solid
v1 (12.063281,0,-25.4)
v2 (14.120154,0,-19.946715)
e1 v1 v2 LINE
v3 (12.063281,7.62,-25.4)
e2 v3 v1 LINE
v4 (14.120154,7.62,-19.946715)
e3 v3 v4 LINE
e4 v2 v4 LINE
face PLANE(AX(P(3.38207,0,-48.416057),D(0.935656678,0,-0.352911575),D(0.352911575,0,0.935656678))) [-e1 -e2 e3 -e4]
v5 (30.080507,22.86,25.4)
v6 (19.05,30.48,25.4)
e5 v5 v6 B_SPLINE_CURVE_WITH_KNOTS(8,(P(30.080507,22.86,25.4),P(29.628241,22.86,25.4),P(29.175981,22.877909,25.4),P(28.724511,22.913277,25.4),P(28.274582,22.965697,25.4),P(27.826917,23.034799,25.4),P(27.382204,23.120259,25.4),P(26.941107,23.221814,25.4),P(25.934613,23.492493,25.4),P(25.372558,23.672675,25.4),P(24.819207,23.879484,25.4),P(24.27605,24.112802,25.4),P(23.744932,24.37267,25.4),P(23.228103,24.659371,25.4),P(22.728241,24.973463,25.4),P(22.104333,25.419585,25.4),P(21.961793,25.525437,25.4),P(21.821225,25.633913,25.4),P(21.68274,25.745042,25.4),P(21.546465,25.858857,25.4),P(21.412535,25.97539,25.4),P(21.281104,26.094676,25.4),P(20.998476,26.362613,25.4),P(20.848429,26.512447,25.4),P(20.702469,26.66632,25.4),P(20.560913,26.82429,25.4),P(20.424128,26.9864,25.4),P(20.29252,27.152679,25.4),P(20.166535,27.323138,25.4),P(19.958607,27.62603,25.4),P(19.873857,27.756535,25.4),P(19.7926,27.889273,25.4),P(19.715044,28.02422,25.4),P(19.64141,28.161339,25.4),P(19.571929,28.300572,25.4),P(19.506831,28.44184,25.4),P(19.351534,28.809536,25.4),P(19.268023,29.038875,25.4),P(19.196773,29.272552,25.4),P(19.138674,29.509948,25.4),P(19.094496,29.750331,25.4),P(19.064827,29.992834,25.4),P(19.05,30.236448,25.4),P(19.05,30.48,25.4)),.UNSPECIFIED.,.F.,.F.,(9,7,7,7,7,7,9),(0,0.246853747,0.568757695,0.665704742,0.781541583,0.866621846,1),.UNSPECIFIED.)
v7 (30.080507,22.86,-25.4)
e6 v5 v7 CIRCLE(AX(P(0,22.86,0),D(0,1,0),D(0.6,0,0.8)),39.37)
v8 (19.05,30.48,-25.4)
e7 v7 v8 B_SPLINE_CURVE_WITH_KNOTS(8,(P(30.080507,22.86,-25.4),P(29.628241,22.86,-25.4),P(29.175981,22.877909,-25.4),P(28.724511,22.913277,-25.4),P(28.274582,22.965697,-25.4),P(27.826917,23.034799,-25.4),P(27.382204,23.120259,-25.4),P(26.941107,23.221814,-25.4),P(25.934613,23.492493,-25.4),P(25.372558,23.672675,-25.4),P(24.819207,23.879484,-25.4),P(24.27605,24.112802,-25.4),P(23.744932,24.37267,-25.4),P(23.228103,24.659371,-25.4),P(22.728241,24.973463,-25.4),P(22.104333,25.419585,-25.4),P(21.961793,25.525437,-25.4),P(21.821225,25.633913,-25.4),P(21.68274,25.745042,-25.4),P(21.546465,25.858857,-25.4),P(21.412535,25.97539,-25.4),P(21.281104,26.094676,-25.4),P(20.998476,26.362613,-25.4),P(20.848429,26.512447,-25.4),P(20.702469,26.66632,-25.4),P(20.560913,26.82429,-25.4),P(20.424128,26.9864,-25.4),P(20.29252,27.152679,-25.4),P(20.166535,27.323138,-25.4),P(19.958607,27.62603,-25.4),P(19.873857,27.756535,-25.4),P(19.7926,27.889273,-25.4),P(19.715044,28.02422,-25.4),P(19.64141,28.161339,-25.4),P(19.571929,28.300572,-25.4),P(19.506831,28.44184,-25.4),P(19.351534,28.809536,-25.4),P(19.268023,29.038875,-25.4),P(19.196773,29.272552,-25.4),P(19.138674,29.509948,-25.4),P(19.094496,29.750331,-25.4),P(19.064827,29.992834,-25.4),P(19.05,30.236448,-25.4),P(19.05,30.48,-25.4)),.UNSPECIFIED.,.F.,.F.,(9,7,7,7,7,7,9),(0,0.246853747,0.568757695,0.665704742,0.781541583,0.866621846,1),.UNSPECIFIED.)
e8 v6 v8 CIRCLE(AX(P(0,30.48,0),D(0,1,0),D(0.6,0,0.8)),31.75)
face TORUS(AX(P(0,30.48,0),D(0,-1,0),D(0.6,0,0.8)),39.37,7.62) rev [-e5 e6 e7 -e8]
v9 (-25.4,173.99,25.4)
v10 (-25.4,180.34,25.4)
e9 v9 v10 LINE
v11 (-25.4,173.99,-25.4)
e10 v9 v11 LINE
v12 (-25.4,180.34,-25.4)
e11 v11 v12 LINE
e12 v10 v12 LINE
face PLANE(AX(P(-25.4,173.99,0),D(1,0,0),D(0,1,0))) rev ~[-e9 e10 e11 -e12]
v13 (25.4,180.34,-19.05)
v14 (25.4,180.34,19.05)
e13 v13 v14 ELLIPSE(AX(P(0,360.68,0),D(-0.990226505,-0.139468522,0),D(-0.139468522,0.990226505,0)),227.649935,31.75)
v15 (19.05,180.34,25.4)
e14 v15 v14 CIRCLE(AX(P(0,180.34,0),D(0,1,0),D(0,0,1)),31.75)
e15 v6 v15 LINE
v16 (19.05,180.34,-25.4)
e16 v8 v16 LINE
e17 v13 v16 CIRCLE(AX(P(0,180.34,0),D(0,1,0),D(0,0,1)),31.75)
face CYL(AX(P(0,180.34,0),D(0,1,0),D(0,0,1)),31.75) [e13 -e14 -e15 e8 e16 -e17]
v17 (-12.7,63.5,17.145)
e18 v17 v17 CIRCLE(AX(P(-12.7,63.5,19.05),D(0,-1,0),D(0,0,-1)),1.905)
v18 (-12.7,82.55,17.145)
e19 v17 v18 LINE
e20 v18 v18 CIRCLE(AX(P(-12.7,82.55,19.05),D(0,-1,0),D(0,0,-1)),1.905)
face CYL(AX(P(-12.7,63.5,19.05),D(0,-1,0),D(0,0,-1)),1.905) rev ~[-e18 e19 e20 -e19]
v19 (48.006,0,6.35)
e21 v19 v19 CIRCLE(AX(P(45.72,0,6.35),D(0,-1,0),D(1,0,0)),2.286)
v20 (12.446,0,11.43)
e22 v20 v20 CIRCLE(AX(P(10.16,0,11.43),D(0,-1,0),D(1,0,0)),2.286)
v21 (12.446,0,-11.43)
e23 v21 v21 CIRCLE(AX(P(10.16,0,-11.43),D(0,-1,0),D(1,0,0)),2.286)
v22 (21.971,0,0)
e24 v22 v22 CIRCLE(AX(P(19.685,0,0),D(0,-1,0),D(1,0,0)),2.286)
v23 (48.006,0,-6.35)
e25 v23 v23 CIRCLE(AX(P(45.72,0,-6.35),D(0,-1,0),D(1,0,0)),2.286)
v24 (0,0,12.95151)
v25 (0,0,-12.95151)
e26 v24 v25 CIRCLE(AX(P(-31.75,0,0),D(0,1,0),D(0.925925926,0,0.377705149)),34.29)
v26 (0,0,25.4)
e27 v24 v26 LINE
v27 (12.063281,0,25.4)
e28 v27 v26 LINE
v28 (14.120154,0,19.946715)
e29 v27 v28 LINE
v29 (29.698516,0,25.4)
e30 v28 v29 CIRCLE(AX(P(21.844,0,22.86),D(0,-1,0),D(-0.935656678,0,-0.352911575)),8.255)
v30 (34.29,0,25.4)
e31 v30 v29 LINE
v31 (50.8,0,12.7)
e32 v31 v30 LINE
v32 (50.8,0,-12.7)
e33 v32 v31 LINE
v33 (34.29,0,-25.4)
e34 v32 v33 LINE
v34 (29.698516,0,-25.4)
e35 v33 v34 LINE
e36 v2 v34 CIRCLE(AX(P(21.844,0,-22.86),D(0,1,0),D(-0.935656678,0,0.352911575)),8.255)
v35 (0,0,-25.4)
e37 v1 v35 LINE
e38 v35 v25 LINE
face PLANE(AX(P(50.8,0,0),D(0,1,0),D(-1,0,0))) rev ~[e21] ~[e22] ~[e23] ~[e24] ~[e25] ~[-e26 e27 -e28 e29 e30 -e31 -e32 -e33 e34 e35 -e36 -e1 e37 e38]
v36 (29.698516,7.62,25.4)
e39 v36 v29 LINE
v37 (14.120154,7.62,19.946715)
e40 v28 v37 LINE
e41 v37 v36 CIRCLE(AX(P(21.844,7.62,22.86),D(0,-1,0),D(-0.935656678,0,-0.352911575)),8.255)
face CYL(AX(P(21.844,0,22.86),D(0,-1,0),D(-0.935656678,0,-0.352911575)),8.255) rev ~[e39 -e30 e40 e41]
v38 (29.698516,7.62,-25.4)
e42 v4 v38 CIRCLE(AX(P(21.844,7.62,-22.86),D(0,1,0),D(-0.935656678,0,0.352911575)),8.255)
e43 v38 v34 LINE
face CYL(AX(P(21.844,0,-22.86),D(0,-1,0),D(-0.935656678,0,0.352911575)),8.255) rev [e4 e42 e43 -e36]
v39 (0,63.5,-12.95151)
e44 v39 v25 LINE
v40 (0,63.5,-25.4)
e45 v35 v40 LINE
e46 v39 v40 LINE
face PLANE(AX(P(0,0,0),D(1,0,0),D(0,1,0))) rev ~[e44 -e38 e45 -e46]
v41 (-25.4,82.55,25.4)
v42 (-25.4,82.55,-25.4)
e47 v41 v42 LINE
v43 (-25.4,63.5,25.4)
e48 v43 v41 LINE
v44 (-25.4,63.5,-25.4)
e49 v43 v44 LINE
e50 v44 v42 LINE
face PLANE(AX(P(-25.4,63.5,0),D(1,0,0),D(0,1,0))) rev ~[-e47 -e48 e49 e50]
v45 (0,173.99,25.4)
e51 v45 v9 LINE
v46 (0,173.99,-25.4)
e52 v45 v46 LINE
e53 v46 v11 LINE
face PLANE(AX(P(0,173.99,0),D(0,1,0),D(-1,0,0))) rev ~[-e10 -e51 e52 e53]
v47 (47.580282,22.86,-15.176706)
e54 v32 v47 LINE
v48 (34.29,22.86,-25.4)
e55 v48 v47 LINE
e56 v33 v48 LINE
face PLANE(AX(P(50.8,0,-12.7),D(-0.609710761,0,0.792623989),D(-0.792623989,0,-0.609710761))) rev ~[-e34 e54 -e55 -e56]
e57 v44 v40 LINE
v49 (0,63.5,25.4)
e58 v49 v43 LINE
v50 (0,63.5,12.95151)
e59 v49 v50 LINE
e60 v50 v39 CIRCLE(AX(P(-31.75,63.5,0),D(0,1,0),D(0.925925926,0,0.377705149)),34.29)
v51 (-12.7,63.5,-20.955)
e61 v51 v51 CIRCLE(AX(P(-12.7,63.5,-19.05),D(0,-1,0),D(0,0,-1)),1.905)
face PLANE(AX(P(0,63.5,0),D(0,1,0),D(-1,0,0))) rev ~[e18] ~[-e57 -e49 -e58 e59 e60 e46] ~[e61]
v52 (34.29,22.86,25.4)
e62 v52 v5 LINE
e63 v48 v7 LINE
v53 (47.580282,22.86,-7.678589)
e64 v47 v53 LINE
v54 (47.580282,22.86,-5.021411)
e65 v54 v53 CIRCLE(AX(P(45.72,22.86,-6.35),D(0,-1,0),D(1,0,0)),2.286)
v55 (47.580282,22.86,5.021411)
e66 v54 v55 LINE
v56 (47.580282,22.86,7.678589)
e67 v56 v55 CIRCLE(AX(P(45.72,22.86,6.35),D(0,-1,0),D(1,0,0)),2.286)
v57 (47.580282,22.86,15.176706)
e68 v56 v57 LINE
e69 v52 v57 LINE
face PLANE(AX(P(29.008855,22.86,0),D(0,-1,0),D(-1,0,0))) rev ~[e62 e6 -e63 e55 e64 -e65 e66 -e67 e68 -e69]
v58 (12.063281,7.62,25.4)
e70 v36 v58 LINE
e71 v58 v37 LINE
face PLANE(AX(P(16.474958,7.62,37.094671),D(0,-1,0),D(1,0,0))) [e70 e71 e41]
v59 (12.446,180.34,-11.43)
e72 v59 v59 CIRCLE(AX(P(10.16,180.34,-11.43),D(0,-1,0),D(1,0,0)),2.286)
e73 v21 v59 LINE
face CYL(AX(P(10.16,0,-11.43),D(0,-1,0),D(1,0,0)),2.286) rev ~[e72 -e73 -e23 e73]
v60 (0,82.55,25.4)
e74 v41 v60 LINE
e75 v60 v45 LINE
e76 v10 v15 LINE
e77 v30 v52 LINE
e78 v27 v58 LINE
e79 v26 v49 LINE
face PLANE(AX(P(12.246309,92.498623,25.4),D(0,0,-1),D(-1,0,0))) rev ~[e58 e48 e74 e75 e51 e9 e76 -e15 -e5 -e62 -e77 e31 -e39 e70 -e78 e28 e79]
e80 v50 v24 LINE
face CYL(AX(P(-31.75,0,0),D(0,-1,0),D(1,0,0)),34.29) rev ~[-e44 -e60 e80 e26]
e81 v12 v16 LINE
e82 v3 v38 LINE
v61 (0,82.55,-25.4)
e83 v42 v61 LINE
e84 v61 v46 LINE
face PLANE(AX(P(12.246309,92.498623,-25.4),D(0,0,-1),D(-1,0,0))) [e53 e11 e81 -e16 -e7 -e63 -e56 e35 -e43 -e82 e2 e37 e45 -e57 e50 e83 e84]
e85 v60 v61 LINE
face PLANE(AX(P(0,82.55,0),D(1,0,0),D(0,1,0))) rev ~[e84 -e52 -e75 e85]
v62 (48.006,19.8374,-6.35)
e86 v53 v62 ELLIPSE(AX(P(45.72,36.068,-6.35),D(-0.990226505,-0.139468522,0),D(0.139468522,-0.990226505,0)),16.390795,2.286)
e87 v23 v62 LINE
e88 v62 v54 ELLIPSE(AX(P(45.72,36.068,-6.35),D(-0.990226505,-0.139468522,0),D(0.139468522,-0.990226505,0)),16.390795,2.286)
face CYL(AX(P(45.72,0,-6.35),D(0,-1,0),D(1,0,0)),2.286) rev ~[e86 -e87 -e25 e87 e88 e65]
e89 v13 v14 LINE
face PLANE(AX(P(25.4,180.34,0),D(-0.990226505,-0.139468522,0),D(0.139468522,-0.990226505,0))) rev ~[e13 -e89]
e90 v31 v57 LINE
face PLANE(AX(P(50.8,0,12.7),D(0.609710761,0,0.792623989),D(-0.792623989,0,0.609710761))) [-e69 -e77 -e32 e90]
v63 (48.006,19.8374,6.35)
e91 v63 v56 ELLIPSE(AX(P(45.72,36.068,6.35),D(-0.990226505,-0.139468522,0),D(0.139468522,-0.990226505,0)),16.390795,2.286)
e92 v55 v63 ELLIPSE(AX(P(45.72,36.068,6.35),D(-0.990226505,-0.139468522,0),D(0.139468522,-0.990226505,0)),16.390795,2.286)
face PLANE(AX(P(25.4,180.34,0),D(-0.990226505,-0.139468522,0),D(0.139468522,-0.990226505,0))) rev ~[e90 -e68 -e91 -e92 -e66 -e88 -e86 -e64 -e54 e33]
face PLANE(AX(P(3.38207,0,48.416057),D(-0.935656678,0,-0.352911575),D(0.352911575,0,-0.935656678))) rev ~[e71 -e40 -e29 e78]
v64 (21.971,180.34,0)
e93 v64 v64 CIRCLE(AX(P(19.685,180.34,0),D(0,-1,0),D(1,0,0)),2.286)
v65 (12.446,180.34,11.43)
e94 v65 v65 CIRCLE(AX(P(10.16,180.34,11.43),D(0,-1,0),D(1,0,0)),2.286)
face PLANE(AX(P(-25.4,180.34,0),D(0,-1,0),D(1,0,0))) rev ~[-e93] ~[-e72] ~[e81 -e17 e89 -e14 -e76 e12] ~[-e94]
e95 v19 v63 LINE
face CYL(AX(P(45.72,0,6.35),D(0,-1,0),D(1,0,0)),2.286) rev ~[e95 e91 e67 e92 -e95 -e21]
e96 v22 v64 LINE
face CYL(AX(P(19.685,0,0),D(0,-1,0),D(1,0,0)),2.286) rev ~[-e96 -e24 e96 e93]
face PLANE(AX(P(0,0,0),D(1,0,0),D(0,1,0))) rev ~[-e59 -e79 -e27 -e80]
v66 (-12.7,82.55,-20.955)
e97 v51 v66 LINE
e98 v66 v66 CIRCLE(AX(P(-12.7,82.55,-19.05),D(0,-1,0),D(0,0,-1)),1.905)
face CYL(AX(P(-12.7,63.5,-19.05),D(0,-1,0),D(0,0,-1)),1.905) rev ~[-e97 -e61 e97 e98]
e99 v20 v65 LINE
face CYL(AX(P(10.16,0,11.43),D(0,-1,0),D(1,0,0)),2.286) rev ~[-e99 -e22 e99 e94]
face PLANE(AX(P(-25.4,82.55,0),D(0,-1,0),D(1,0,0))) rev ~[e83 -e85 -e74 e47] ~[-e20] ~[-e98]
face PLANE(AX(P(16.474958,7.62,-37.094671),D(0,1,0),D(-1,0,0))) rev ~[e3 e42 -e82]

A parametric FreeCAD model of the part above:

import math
import FreeCAD as App
import Part
import Sketcher
from FreeCAD import Vector
Q = App.Units.Quantity


def edges_at(feature, points):
    """Names of the edges that pass closest to the given points."""
    edges = feature.Shape.Edges
    near = lambda p: min(range(len(edges)), key=lambda i: edges[i].distToShape(Part.Vertex(*p))[0])
    return sorted({f"Edge{near(p) + 1}" for p in points})

doc = App.newDocument("Part")
body = doc.addObject("PartDesign::Body", "Body")

# Sketch on XY plane
sketch1 = body.newObject("Sketcher::SketchObject", "Sketch")
sketch1.AttachmentSupport = (doc.getObject("XY_Plane"), [""])
sketch1.MapMode = "FlatFace"
sketch1.addGeometry([
    Part.LineSegment(Vector(0, 64, 0), Vector(0, 0, 0)),  # 0
    Part.LineSegment(Vector(0, 0, 0), Vector(51, 0, 0)),  # 1
    Part.LineSegment(Vector(51, 0, 0), Vector(25, 180, 0)),  # 2
    Part.LineSegment(Vector(25, 180, 0), Vector(-25, 180, 0)),  # 3
    Part.LineSegment(Vector(-25, 180, 0), Vector(-25, 174, 0)),  # 4
    Part.LineSegment(Vector(-25, 174, 0), Vector(0, 174, 0)),  # 5
    Part.LineSegment(Vector(0, 174, 0), Vector(0, 83, 0)),  # 6
    Part.LineSegment(Vector(0, 83, 0), Vector(-25, 83, 0)),  # 7
    Part.LineSegment(Vector(-25, 83, 0), Vector(-25, 64, 0)),  # 8
    Part.LineSegment(Vector(-25, 64, 0), Vector(0, 64, 0)),  # 9
], False)
sketch1.addConstraint([
    Sketcher.Constraint("Coincident", 0, 2, 1, 1),
    Sketcher.Constraint("Coincident", 1, 2, 2, 1),
    Sketcher.Constraint("Coincident", 2, 2, 3, 1),
    Sketcher.Constraint("Coincident", 3, 2, 4, 1),
    Sketcher.Constraint("Coincident", 4, 2, 5, 1),
    Sketcher.Constraint("Coincident", 5, 2, 6, 1),
    Sketcher.Constraint("Coincident", 6, 2, 7, 1),
    Sketcher.Constraint("Coincident", 7, 2, 8, 1),
    Sketcher.Constraint("Coincident", 8, 2, 9, 1),
    Sketcher.Constraint("Coincident", 9, 2, 0, 1),
    Sketcher.Constraint("Vertical", 0),
    Sketcher.Constraint("Horizontal", 1),
    Sketcher.Constraint("Horizontal", 3),
    Sketcher.Constraint("Vertical", 4),
    Sketcher.Constraint("Horizontal", 5),
    Sketcher.Constraint("Vertical", 6),
    Sketcher.Constraint("Horizontal", 7),
    Sketcher.Constraint("Vertical", 8),
    Sketcher.Constraint("Horizontal", 9),
    Sketcher.Constraint("Coincident", 0, 2, -1, 1),
    Sketcher.Constraint("PointOnObject", 5, 2, -2),
    Sketcher.Constraint("Vertical", 4, 2, 7, 2),
    Sketcher.Constraint("Equal", 1, 3),
    Sketcher.Constraint("DistanceX", 1, 1, 1, 2, Q("2 in")),
    Sketcher.Constraint("DistanceX", 5, 1, 5, 2, Q("1 in")),
    Sketcher.Constraint("DistanceY", 0, 2, 0, 1, Q("2.5 in")),
    Sketcher.Constraint("DistanceY", 6, 2, 6, 1, Q("3.6 in")),
    Sketcher.Constraint("DistanceY", 4, 2, 4, 1, Q("0.25 in")),
    Sketcher.Constraint("DistanceY", 8, 2, 8, 1, Q("0.75 in")),
])
pad1 = body.newObject("PartDesign::Pad", "Pad")
pad1.Profile = sketch1
pad1.Length = Q("2 in")
pad1.Midplane = True

# Sketch on XZ plane
sketch2 = body.newObject("Sketcher::SketchObject", "Sketch001")
sketch2.AttachmentSupport = (doc.getObject("XZ_Plane"), [""])
sketch2.MapMode = "FlatFace"
sketch2.addGeometry([
    Part.Circle(Vector(10.2, -11.4, 0), Vector(0, 0, 1), 2.3),  # 0
    Part.Circle(Vector(19.7, 0, 0), Vector(0, 0, 1), 2.3),  # 1
    Part.Circle(Vector(10.2, 11.4, 0), Vector(0, 0, 1), 2.3),  # 2
    Part.Circle(Vector(45.7, -6.3, 0), Vector(0, 0, 1), 2.3),  # 3
    Part.Circle(Vector(45.7, 6.3, 0), Vector(0, 0, 1), 2.3),  # 4
], False)
sketch2.addConstraint([
    Sketcher.Constraint("Equal", 0, 1),
    Sketcher.Constraint("Equal", 1, 2),
    Sketcher.Constraint("Equal", 2, 3),
    Sketcher.Constraint("Equal", 3, 4),
    Sketcher.Constraint("Symmetric", 0, 3, 2, 3, -1),
    Sketcher.Constraint("Symmetric", 3, 3, 4, 3, -1),
    Sketcher.Constraint("PointOnObject", 1, 3, -1),
    Sketcher.Constraint("Diameter", 0, Q("0.18 in")),
    Sketcher.Constraint("DistanceX", -1, 1, 0, 3, Q("0.4 in")),
    Sketcher.Constraint("DistanceX", -1, 1, 3, 3, Q("1.8 in")),
    Sketcher.Constraint("DistanceY", 0, 3, 2, 3, Q("0.9 in")),
    Sketcher.Constraint("DistanceY", 0, 3, 3, 3, Q("0.2 in")),
    Sketcher.Constraint("DistanceX", -1, 1, 1, 3, Q("0.775 in")),
])
pocket1 = body.newObject("PartDesign::Pocket", "Pocket")
pocket1.Profile = sketch2
pocket1.Type = "ThroughAll"

# Sketch on XZ plane
sketch3 = body.newObject("Sketcher::SketchObject", "Sketch002")
sketch3.AttachmentSupport = (doc.getObject("XZ_Plane"), [""])
sketch3.MapMode = "FlatFace"
sketch3.AttachmentOffset = App.Placement(Vector(0, 0, -2.5 * 25.4), App.Rotation())
sketch3.addGeometry([
    Part.Circle(Vector(-12.7, -19.1, 0), Vector(0, 0, 1), 1.9),
    Part.Circle(Vector(-12.7, 19.1, 0), Vector(0, 0, 1), 1.9),
], False)
sketch3.addConstraint([
    Sketcher.Constraint("Equal", 0, 1),
    Sketcher.Constraint("Symmetric", 0, 3, 1, 3, -1),
    Sketcher.Constraint("Diameter", 0, Q("0.15 in")),
    Sketcher.Constraint("DistanceX", 0, 3, -1, 1, Q("0.5 in")),
    Sketcher.Constraint("DistanceY", 0, 3, 1, 3, Q("1.5 in")),
])
pocket2 = body.newObject("PartDesign::Pocket", "Pocket001")
pocket2.Profile = sketch3
pocket2.Length = Q("0.8 in")

# Sketch on XZ plane
sketch4 = body.newObject("Sketcher::SketchObject", "Sketch003")
sketch4.AttachmentSupport = (doc.getObject("XZ_Plane"), [""])
sketch4.MapMode = "FlatFace"
sketch4.addGeometry(Part.Circle(Vector(-32, 0, 0), Vector(0, 0, 1), 34), False)
sketch4.addConstraint([
    Sketcher.Constraint("PointOnObject", 0, 3, -1),
    Sketcher.Constraint("Diameter", 0, Q("2.7 in")),
    Sketcher.Constraint("DistanceX", 0, 3, -1, 1, Q("1.25 in")),
])
pocket3 = body.newObject("PartDesign::Pocket", "Pocket002")
pocket3.Profile = sketch4
pocket3.Length = Q("2.5 in")

# Sketch on XZ plane
sketch5 = body.newObject("Sketcher::SketchObject", "Sketch004")
sketch5.AttachmentSupport = (doc.getObject("XZ_Plane"), [""])
sketch5.MapMode = "FlatFace"
sketch5.addGeometry([
    Part.LineSegment(Vector(19, -54, 0), Vector(30, -26, 0)),  # 0
    Part.ArcOfCircle(Part.Circle(Vector(22, -23, 0), Vector(0, 0, 1), 8), math.radians(-21), math.radians(159)),  # 1
    Part.LineSegment(Vector(14, -20, 0), Vector(3, -48, 0)),  # 2
    Part.ArcOfCircle(Part.Circle(Vector(11, -51, 0), Vector(0, 0, 1), 8), math.radians(159), math.radians(339)),  # 3
    Part.LineSegment(Vector(30, 26, 0), Vector(19, 54, 0)),  # 4
    Part.ArcOfCircle(Part.Circle(Vector(11, 51, 0), Vector(0, 0, 1), 8), math.radians(21), math.radians(201)),  # 5
    Part.LineSegment(Vector(3, 48, 0), Vector(14, 20, 0)),  # 6
    Part.ArcOfCircle(Part.Circle(Vector(22, 23, 0), Vector(0, 0, 1), 8), math.radians(-159), math.radians(21)),  # 7
], False)
sketch5.addConstraint([
    Sketcher.Constraint("Tangent", 0, 2, 1, 1),
    Sketcher.Constraint("Tangent", 1, 2, 2, 1),
    Sketcher.Constraint("Tangent", 2, 2, 3, 1),
    Sketcher.Constraint("Tangent", 3, 2, 0, 1),
    Sketcher.Constraint("Tangent", 4, 2, 5, 1),
    Sketcher.Constraint("Tangent", 5, 2, 6, 1),
    Sketcher.Constraint("Tangent", 6, 2, 7, 1),
    Sketcher.Constraint("Tangent", 7, 2, 4, 1),
    Sketcher.Constraint("Equal", 1, 3),
    Sketcher.Constraint("Equal", 3, 5),
    Sketcher.Constraint("Equal", 5, 7),
    Sketcher.Constraint("Symmetric", 3, 3, 5, 3, -1),
    Sketcher.Constraint("Symmetric", 1, 3, 7, 3, -1),
    Sketcher.Constraint("Radius", 1, Q("0.325 in")),
    Sketcher.Constraint("DistanceY", 1, 3, -1, 1, Q("0.9 in")),
    Sketcher.Constraint("DistanceX", -1, 1, 1, 3, Q("0.86 in")),
    Sketcher.Constraint("DistanceX", -1, 1, 2, 2, 3.38207),
    Sketcher.Constraint("DistanceX", -1, 1, 3, 2, 18.829762),
])
pocket4 = body.newObject("PartDesign::Pocket", "Pocket003")
pocket4.Profile = sketch5
pocket4.Length = Q("0.3 in")

# Sketch on XZ plane
sketch6 = body.newObject("Sketcher::SketchObject", "Sketch005")
sketch6.AttachmentSupport = (doc.getObject("XZ_Plane"), [""])
sketch6.MapMode = "FlatFace"
sketch6.addGeometry([
    Part.LineSegment(Vector(51, 13, 0), Vector(51, 25, 0)),  # 0
    Part.LineSegment(Vector(51, 25, 0), Vector(34, 25, 0)),  # 1
    Part.LineSegment(Vector(34, 25, 0), Vector(51, 13, 0)),  # 2
    Part.LineSegment(Vector(34, -25, 0), Vector(51, -25, 0)),  # 3
    Part.LineSegment(Vector(51, -25, 0), Vector(51, -13, 0)),  # 4
    Part.LineSegment(Vector(51, -13, 0), Vector(34, -25, 0)),  # 5
], False)
sketch6.addConstraint([
    Sketcher.Constraint("Coincident", 0, 2, 1, 1),
    Sketcher.Constraint("Coincident", 1, 2, 2, 1),
    Sketcher.Constraint("Coincident", 2, 2, 0, 1),
    Sketcher.Constraint("Coincident", 3, 2, 4, 1),
    Sketcher.Constraint("Coincident", 4, 2, 5, 1),
    Sketcher.Constraint("Coincident", 5, 2, 3, 1),
    Sketcher.Constraint("Vertical", 0),
    Sketcher.Constraint("Horizontal", 1),
    Sketcher.Constraint("Horizontal", 3),
    Sketcher.Constraint("Vertical", 4),
    Sketcher.Constraint("Symmetric", 0, 2, 3, 2, -1),
    Sketcher.Constraint("Vertical", 1, 2, 5, 2),
    Sketcher.Constraint("Equal", 0, 4),
    Sketcher.Constraint("DistanceY", 0, 1, 0, 2, Q("0.5 in")),
    Sketcher.Constraint("DistanceX", -1, 1, 0, 2, Q("2 in")),
    Sketcher.Constraint("DistanceY", -1, 1, 0, 2, Q("1 in")),
    Sketcher.Constraint("DistanceX", 1, 2, 1, 1, Q("0.65 in")),
])
pocket5 = body.newObject("PartDesign::Pocket", "Pocket004")
pocket5.Profile = sketch6
pocket5.Type = "ThroughAll"

# Sketch on XZ plane
sketch7 = body.newObject("Sketcher::SketchObject", "Sketch006")
sketch7.AttachmentSupport = (doc.getObject("XZ_Plane"), [""])
sketch7.MapMode = "FlatFace"
sketch7.AttachmentOffset = App.Placement(Vector(0, 0, -7.1 * 25.4), App.Rotation())
sketch7.addGeometry([
    Part.LineSegment(Vector(51, -32, 0), Vector(0, -32, 0)),
    Part.ArcOfCircle(Part.Circle(Vector(0, 0, 0), Vector(0, 0, 1), 32), math.radians(-90), math.radians(90)),
    Part.LineSegment(Vector(0, 32, 0), Vector(51, 32, 0)),
    Part.LineSegment(Vector(51, 32, 0), Vector(51, -32, 0)),
], False)
sketch7.addConstraint([
    Sketcher.Constraint("Tangent", 0, 2, 1, 1),
    Sketcher.Constraint("Tangent", 1, 2, 2, 1),
    Sketcher.Constraint("Coincident", 2, 2, 3, 1),
    Sketcher.Constraint("Coincident", 3, 2, 0, 1),
    Sketcher.Constraint("Horizontal", 0),
    Sketcher.Constraint("Horizontal", 2),
    Sketcher.Constraint("Vertical", 3),
    Sketcher.Constraint("Coincident", 1, 3, -1, 1),
    Sketcher.Constraint("DistanceX", 0, 2, 0, 1, Q("2 in")),
    Sketcher.Constraint("Radius", 1, Q("1.25 in")),
])
pocket6 = body.newObject("PartDesign::Pocket", "Pocket005")
pocket6.Profile = sketch7
pocket6.Length = Q("6.2 in")
pocket6.Reversed = True
doc.recompute()

fillet = body.newObject("PartDesign::Fillet", "Fillet")
fillet.Base = (pocket6, edges_at(pocket6, [(31.75, 22.86, 0)]))
fillet.Radius = Q("0.3 in")

doc.recompute()
